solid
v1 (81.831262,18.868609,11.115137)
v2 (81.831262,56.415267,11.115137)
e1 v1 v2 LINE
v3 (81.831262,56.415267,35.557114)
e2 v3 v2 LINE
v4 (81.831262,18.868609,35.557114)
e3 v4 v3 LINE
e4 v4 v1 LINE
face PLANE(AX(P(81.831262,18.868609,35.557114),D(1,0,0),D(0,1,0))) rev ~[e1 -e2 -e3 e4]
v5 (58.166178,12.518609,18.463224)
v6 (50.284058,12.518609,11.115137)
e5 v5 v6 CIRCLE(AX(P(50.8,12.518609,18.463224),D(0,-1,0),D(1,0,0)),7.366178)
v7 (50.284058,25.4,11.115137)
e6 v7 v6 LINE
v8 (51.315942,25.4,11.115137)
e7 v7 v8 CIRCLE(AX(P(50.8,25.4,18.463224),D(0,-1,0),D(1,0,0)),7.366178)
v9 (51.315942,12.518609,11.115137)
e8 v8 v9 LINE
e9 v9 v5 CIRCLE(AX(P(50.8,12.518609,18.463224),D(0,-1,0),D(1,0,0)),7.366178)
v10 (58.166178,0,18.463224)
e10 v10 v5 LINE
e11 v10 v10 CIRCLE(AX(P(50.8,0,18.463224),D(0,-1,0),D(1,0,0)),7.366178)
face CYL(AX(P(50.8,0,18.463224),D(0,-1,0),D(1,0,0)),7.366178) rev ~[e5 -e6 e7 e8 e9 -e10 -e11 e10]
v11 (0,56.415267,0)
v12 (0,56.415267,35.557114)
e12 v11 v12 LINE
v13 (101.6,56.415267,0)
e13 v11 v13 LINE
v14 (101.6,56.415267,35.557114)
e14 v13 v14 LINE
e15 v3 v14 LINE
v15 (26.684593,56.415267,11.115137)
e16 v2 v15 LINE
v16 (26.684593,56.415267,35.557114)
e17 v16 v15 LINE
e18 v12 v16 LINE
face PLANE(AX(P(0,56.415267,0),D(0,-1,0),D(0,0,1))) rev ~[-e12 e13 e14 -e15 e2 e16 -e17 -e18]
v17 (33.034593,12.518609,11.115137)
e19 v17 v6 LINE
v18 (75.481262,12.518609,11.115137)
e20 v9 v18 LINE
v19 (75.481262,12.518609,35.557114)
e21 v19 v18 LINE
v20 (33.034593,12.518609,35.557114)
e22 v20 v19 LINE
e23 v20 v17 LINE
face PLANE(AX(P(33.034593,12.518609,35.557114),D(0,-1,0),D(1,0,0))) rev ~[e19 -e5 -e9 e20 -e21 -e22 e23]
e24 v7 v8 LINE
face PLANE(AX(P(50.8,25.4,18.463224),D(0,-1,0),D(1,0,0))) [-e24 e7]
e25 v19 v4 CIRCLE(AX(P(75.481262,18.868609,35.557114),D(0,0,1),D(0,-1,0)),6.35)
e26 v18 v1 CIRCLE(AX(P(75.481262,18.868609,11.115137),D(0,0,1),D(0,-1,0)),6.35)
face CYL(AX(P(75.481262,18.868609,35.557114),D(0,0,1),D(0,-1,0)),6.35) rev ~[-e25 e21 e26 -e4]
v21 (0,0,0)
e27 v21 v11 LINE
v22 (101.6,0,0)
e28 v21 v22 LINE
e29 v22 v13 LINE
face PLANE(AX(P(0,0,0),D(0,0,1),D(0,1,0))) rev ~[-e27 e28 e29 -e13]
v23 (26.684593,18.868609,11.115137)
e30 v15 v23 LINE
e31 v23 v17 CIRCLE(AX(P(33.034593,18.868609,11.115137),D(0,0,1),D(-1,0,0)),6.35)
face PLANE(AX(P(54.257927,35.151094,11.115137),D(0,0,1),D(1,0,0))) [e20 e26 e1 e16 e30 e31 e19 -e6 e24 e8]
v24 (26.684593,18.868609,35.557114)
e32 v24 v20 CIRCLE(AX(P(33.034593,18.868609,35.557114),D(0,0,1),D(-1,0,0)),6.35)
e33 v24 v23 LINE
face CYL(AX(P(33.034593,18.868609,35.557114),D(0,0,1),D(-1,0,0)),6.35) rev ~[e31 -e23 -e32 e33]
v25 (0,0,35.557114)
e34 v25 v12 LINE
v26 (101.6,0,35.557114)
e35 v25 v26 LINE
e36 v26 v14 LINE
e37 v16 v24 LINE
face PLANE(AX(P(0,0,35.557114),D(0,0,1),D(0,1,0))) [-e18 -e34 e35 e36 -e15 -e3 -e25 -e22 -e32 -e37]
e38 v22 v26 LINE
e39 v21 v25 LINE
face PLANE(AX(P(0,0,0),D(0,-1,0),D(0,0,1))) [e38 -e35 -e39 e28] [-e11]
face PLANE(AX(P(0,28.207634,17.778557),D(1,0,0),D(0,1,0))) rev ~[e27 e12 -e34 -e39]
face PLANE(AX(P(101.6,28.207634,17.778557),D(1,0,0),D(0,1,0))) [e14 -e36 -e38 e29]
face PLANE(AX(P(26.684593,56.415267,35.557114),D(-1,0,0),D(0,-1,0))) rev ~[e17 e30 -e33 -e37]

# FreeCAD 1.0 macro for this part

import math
import FreeCAD as App
import Part
import Sketcher

V = App.Vector
Q = App.Units.Quantity

doc = App.newDocument("Part")
body = doc.addObject("PartDesign::Body", "Body")

# Sketch on YZ plane
sketch1 = doc.addObject("Sketcher::SketchObject", "Sketch")
body.addObject(sketch1)
sketch1.AttachmentSupport = (doc.YZ_Plane, [""])
sketch1.MapMode = "FlatFace"
sketch1.addGeometry([
    Part.LineSegment(V(0, 36, 0), V(0, 0, 0)),
    Part.LineSegment(V(0, 0, 0), V(56, 0, 0)),
    Part.LineSegment(V(56, 0, 0), V(56, 36, 0)),
    Part.LineSegment(V(56, 36, 0), V(0, 36, 0)),
], False)
sketch1.addConstraint([
    Sketcher.Constraint("Coincident", 0, 2, 1, 1),
    Sketcher.Constraint("Coincident", 1, 2, 2, 1),
    Sketcher.Constraint("Coincident", 2, 2, 3, 1),
    Sketcher.Constraint("Coincident", 3, 2, 0, 1),
    Sketcher.Constraint("Vertical", 0),
    Sketcher.Constraint("Horizontal", 1),
    Sketcher.Constraint("Vertical", 2),
    Sketcher.Constraint("Horizontal", 3),
    Sketcher.Constraint("Coincident", 0, 2, -1, 1),
    Sketcher.Constraint("DistanceX", 1, 1, 1, 2, 56.415267),
    Sketcher.Constraint("DistanceY", 0, 2, 0, 1, 35.557114),
])
pad1 = doc.addObject("PartDesign::Pad", "Pad")
body.addObject(pad1)
pad1.Profile = sketch1
pad1.Length = Q("4 in")

# Sketch on XY plane
sketch2 = doc.addObject("Sketcher::SketchObject", "Sketch001")
body.addObject(sketch2)
sketch2.AttachmentSupport = (doc.XY_Plane, [""])
sketch2.MapMode = "FlatFace"
sketch2.AttachmentOffset = App.Placement(V(0, 0, 35.557114), App.Rotation())
sketch2.addGeometry([
    Part.LineSegment(V(82, 19, 0), V(82, 56, 0)),  # 0
    Part.LineSegment(V(82, 56, 0), V(27, 56, 0)),  # 1
    Part.LineSegment(V(27, 56, 0), V(27, 19, 0)),  # 2
    Part.ArcOfCircle(Part.Circle(V(33, 19, 0), V(0, 0, 1), 6), math.radians(180), math.radians(270)),  # 3
    Part.LineSegment(V(33, 13, 0), V(75, 13, 0)),  # 4
    Part.ArcOfCircle(Part.Circle(V(75, 19, 0), V(0, 0, 1), 6), math.radians(-90), math.radians(0)),  # 5
], False)
sketch2.addConstraint([
    Sketcher.Constraint("Coincident", 0, 2, 1, 1),
    Sketcher.Constraint("Coincident", 1, 2, 2, 1),
    Sketcher.Constraint("Tangent", 2, 2, 3, 1),
    Sketcher.Constraint("Tangent", 3, 2, 4, 1),
    Sketcher.Constraint("Tangent", 4, 2, 5, 1),
    Sketcher.Constraint("Tangent", 5, 2, 0, 1),
    Sketcher.Constraint("Vertical", 0),
    Sketcher.Constraint("Horizontal", 1),
    Sketcher.Constraint("Vertical", 2),
    Sketcher.Constraint("Horizontal", 4),
    Sketcher.Constraint("Equal", 3, 5),
    Sketcher.Constraint("Radius", 3, Q("0.25 in")),
    Sketcher.Constraint("DistanceX", 1, 2, 1, 1, 55.146668),
    Sketcher.Constraint("DistanceY", 0, 1, 0, 2, 37.546658),
    Sketcher.Constraint("DistanceY", -1, 1, 3, 3, 18.868609),
    Sketcher.Constraint("DistanceX", -1, 1, 5, 3, 75.481262),
])
pocket1 = doc.addObject("PartDesign::Pocket", "Pocket")
body.addObject(pocket1)
pocket1.Profile = sketch2
pocket1.Length = 24.441976

# Sketch on XZ plane
sketch3 = doc.addObject("Sketcher::SketchObject", "Sketch002")
body.addObject(sketch3)
sketch3.AttachmentSupport = (doc.XZ_Plane, [""])
sketch3.MapMode = "FlatFace"
sketch3.addGeometry(Part.Circle(V(51, 18, 0), V(0, 0, 1), 7), False)
sketch3.addConstraint([
    Sketcher.Constraint("DistanceX", -1, 1, 0, 3, Q("2 in")),
    Sketcher.Constraint("Diameter", 0, 14.732355),
    Sketcher.Constraint("DistanceY", -1, 1, 0, 3, 18.463224),
])
pocket2 = doc.addObject("PartDesign::Pocket", "Pocket001")
body.addObject(pocket2)
pocket2.Profile = sketch3
pocket2.Length = Q("1 in")

doc.recompute()
